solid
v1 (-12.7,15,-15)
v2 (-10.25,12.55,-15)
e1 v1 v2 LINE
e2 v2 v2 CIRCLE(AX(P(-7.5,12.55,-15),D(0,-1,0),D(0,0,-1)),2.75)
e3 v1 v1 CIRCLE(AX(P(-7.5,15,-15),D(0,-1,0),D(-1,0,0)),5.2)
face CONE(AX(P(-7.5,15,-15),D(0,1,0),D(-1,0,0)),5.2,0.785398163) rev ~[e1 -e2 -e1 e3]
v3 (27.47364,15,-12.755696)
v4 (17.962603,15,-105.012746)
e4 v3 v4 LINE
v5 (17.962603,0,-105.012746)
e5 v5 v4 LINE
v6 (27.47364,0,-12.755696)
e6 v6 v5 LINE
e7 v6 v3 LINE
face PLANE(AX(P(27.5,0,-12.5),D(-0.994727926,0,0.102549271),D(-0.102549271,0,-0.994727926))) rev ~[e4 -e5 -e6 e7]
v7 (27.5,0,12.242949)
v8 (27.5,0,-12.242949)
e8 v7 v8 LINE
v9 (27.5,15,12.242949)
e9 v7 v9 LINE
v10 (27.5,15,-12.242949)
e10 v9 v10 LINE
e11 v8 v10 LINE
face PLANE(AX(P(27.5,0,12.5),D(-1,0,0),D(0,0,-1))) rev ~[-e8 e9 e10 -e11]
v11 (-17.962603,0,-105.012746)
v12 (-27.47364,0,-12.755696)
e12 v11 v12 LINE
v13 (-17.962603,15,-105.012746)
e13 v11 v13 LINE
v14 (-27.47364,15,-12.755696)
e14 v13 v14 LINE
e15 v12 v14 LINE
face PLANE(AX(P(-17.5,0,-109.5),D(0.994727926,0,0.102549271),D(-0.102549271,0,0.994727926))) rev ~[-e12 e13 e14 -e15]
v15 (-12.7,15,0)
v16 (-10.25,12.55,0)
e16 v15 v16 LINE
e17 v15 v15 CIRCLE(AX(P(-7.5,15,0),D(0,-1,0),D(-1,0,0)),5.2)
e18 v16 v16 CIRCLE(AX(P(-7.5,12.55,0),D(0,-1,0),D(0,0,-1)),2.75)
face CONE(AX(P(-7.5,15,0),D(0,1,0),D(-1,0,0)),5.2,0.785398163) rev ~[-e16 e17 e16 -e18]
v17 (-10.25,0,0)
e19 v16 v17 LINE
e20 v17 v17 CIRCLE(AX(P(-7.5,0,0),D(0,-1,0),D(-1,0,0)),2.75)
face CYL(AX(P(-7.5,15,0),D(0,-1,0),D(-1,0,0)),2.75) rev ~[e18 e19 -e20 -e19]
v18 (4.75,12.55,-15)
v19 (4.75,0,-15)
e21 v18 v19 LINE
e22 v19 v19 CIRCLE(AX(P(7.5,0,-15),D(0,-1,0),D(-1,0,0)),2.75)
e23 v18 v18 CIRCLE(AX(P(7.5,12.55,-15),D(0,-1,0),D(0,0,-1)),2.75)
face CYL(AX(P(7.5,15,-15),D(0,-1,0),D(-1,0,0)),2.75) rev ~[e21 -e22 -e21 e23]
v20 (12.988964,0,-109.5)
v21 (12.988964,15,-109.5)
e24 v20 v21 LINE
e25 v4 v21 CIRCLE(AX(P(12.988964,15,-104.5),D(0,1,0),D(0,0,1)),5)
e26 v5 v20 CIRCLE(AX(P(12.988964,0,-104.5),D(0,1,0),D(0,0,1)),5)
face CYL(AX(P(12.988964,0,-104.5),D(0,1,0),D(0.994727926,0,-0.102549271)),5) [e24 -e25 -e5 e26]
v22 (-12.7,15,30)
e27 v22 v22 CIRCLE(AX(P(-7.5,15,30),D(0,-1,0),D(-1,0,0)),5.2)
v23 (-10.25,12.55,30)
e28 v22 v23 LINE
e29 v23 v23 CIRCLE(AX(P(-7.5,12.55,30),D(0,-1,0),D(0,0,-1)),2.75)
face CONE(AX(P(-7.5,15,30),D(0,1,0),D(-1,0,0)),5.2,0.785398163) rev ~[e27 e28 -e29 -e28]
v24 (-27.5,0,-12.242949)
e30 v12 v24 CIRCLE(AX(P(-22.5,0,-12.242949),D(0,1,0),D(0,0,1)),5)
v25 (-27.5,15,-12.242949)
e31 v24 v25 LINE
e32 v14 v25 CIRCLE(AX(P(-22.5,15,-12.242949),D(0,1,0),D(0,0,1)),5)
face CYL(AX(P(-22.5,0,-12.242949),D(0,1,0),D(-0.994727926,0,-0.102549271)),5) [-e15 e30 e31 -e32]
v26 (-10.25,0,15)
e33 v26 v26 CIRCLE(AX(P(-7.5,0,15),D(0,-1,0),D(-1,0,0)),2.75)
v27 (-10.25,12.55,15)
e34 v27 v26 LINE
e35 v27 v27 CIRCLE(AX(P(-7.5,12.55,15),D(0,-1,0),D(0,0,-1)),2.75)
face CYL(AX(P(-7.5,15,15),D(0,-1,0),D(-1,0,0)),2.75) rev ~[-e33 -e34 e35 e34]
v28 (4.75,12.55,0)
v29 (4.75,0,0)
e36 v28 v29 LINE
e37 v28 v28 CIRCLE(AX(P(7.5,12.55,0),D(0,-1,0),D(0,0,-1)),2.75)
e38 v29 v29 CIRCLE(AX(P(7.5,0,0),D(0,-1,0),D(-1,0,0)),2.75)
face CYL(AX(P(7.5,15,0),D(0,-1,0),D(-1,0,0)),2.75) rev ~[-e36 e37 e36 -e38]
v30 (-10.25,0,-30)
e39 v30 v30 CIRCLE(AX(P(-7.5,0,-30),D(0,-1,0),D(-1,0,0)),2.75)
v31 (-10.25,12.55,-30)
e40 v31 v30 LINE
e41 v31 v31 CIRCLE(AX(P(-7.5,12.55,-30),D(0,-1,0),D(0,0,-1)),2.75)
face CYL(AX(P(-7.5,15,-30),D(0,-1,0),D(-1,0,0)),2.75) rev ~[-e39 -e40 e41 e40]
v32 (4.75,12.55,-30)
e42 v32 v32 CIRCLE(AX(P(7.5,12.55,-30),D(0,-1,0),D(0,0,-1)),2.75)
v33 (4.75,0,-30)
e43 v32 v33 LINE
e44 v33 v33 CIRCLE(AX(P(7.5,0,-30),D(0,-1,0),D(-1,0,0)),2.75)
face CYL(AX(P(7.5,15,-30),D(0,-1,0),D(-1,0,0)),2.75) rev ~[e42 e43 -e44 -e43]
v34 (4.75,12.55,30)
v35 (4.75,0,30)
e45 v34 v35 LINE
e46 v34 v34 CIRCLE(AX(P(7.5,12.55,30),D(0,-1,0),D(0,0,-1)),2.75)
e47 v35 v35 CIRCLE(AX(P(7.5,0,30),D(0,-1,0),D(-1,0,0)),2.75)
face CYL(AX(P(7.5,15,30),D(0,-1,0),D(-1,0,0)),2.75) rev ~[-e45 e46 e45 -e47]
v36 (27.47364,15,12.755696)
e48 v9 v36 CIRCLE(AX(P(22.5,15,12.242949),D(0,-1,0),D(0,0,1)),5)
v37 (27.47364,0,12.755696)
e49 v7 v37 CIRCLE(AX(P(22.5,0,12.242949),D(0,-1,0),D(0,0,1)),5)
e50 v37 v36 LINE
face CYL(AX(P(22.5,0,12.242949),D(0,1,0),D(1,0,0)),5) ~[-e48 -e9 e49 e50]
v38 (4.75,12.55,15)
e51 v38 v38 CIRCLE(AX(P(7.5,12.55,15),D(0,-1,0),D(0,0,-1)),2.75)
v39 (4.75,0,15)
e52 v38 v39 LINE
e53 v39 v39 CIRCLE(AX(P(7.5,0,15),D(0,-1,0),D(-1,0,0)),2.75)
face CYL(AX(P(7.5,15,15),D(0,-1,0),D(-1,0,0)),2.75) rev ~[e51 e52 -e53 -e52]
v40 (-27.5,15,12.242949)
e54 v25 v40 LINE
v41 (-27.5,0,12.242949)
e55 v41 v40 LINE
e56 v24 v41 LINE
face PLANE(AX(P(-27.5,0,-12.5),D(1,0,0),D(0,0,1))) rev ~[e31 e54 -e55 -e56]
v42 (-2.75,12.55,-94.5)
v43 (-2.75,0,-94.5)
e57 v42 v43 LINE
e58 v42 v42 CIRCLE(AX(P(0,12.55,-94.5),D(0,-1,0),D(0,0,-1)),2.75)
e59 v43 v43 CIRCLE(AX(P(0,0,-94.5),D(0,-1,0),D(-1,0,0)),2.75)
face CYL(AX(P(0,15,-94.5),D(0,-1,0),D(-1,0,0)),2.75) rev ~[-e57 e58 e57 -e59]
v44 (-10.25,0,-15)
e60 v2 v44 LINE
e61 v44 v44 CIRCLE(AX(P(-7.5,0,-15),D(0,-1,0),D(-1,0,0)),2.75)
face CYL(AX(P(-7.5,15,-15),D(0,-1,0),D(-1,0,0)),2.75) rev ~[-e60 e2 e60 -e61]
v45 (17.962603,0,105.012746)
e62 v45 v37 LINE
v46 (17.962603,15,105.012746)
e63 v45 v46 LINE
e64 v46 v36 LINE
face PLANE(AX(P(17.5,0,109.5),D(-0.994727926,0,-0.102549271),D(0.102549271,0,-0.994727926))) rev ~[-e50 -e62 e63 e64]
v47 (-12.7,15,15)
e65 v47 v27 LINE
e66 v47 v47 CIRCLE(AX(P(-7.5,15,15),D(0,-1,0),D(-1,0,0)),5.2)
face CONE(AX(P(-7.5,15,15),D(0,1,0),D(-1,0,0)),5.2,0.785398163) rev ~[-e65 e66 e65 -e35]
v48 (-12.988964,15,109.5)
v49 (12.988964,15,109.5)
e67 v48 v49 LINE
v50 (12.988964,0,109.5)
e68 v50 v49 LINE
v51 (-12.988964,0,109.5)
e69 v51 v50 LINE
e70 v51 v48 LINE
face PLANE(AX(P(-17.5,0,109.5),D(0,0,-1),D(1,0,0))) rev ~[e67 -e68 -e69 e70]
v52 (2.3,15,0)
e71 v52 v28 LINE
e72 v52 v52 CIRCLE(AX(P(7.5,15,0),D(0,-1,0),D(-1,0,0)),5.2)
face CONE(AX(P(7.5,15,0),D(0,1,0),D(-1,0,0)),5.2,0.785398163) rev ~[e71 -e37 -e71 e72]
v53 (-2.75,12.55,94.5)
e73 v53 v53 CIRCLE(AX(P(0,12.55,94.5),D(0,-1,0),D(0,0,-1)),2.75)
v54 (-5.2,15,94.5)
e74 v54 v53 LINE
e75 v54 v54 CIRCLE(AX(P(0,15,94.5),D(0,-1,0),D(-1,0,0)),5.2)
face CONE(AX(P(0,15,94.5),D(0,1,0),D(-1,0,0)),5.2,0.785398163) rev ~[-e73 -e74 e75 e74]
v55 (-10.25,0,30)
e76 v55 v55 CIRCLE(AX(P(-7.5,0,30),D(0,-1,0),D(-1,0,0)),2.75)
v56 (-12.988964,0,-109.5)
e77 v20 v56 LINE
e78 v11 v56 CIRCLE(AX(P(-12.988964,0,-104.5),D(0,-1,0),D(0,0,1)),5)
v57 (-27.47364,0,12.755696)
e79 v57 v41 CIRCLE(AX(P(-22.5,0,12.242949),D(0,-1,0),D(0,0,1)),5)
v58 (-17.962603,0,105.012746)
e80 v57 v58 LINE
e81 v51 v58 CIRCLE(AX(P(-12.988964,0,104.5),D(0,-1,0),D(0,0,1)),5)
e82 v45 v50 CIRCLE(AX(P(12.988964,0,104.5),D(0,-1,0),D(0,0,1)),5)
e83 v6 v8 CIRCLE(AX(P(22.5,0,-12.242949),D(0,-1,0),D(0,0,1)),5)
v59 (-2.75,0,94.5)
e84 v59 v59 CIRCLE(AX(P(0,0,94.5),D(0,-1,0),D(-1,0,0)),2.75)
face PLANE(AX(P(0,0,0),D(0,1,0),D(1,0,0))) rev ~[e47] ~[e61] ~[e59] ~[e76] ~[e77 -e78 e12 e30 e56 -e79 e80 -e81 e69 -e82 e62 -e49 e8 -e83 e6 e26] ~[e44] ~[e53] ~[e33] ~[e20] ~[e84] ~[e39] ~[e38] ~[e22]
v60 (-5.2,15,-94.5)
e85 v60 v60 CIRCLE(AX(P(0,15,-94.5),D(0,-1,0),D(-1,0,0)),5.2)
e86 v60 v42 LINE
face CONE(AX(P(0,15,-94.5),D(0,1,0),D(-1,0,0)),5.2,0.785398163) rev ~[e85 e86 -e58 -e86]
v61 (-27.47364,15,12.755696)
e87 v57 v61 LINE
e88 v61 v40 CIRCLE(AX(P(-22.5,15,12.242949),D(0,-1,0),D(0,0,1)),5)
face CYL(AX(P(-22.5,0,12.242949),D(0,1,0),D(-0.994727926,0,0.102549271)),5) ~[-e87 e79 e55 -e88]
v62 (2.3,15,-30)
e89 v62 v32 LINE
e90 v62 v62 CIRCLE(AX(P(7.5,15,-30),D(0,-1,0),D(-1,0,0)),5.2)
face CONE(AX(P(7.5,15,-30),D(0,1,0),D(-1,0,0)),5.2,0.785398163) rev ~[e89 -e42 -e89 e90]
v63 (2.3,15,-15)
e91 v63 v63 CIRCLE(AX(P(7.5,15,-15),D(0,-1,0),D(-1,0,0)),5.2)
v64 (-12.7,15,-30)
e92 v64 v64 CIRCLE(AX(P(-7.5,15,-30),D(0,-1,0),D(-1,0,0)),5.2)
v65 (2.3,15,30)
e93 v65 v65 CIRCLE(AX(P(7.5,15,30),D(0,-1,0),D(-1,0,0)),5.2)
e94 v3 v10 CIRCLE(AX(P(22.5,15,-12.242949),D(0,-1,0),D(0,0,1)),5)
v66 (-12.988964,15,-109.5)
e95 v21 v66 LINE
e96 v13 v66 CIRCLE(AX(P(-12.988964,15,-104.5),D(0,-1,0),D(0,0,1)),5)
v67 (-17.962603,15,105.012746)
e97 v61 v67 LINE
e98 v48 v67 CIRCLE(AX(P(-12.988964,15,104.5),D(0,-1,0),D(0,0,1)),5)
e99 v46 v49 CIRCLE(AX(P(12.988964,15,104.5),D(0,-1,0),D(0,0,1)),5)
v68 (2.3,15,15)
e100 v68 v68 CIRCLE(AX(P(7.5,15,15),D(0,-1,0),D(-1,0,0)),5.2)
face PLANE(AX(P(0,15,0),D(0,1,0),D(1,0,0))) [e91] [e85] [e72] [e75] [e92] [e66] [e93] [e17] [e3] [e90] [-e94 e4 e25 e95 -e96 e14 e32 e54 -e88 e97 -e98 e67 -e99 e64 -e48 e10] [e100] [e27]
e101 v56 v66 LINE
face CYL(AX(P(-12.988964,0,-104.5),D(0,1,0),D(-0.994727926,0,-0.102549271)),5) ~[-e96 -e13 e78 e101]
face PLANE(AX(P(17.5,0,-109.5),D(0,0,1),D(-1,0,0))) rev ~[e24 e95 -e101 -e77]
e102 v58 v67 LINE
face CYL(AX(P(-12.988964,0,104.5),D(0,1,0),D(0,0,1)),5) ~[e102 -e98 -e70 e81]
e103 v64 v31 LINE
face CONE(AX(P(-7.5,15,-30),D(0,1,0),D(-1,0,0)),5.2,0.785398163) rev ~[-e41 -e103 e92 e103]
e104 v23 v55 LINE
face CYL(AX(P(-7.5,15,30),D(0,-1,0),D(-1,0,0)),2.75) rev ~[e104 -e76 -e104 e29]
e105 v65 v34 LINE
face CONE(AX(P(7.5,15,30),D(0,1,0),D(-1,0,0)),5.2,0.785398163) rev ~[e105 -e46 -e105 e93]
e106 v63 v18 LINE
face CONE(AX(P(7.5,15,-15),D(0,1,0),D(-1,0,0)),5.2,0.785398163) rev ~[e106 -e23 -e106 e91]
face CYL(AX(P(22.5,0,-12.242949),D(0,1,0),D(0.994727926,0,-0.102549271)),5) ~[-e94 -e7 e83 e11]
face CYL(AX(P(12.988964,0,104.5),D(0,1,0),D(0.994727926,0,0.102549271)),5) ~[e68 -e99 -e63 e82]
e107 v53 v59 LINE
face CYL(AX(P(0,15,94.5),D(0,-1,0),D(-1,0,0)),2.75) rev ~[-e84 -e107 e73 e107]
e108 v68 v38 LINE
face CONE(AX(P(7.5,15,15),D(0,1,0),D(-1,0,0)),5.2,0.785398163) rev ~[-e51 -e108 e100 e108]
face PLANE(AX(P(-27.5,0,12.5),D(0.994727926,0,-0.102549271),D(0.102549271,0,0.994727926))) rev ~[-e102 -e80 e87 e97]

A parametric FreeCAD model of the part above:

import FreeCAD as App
import Part
import Sketcher


def edges_at(feature, points):
    """Names of the edges that pass closest to the given points."""
    edges = feature.Shape.Edges
    near = lambda p: min(range(len(edges)), key=lambda i: edges[i].distToShape(Part.Vertex(*p))[0])
    return sorted({f"Edge{near(p) + 1}" for p in points})


def add_polygon(sketch, points):
    """Adds a closed chain of lines whose ends are joined by coincident constraints."""
    first, n = sketch.GeometryCount, len(points)
    for a, b in zip(points, points[1:] + points[:1]):
        sketch.addGeometry(Part.LineSegment(App.Vector(*a, 0), App.Vector(*b, 0)), False)
    for i in range(n):
        sketch.addConstraint(Sketcher.Constraint("Coincident", first + i, 2, first + (i + 1) % n, 1))

doc = App.newDocument("Part")
body = doc.addObject("PartDesign::Body", "Body")

# Sketch on XZ plane
sketch1 = body.newObject("Sketcher::SketchObject", "Sketch")
sketch1.AttachmentSupport = (doc.getObject("XZ_Plane"), [""])
sketch1.MapMode = "FlatFace"
add_polygon(sketch1, [(-18, -110), (-28, -12), (-28, 12), (-18, 110), (18, 110), (28, 12), (28, -12), (18, -110)])  # lines 0-7
sketch1.addConstraint([
    Sketcher.Constraint("Vertical", 1),
    Sketcher.Constraint("Horizontal", 3),
    Sketcher.Constraint("Vertical", 5),
    Sketcher.Constraint("Horizontal", 7),
    Sketcher.Constraint("Symmetric", 0, 2, 4, 2, -1, 1),
    Sketcher.Constraint("Symmetric", 2, 2, 6, 2, -1, 1),
    Sketcher.Constraint("Parallel", 0, 4),
    Sketcher.Constraint("Parallel", 2, 6),
    Sketcher.Constraint("Horizontal", 1, 2, 4, 2),
    Sketcher.Constraint("Vertical", 3, 2, 6, 2),
    Sketcher.Constraint("DistanceX", 3, 1, 3, 2, 35.0),
    Sketcher.Constraint("DistanceY", 1, 1, 1, 2, 25.0),
    Sketcher.Constraint("DistanceX", 1, 2, 2, 2, 10.0),
    Sketcher.Constraint("DistanceY", 1, 2, 2, 2, 97.0),
])
pad1 = body.newObject("PartDesign::Pad", "Pad")
pad1.Profile = sketch1
pad1.Length = 15
pad1.Reversed = True

# Sketch on XZ plane
sketch2 = body.newObject("Sketcher::SketchObject", "Sketch001")
sketch2.AttachmentSupport = (doc.getObject("XZ_Plane"), [""])
sketch2.MapMode = "FlatFace"
sketch2.AttachmentOffset = App.Placement(App.Vector(0, 0, -15), App.Rotation())
sketch2.addGeometry([
    Part.Circle(App.Vector(-7.5, -30, 0), App.Vector(0, 0, 1), 2.8),  # 0
    Part.Circle(App.Vector(7.5, -30, 0), App.Vector(0, 0, 1), 2.8),  # 1
    Part.Circle(App.Vector(7.5, -15, 0), App.Vector(0, 0, 1), 2.8),  # 2
    Part.Circle(App.Vector(-7.5, -15, 0), App.Vector(0, 0, 1), 2.8),  # 3
    Part.Circle(App.Vector(-7.5, 0, 0), App.Vector(0, 0, 1), 2.8),  # 4
    Part.Circle(App.Vector(7.5, 0, 0), App.Vector(0, 0, 1), 2.8),  # 5
    Part.Circle(App.Vector(7.5, 15, 0), App.Vector(0, 0, 1), 2.8),  # 6
    Part.Circle(App.Vector(-7.5, 15, 0), App.Vector(0, 0, 1), 2.8),  # 7
    Part.Circle(App.Vector(-7.5, 30, 0), App.Vector(0, 0, 1), 2.8),  # 8
    Part.Circle(App.Vector(7.5, 30, 0), App.Vector(0, 0, 1), 2.8),  # 9
    Part.Circle(App.Vector(0, 94.5, 0), App.Vector(0, 0, 1), 2.8),  # 10
    Part.Circle(App.Vector(0, -94.5, 0), App.Vector(0, 0, 1), 2.8),  # 11
], False)
sketch2.addConstraint([
    Sketcher.Constraint("Equal", 0, 1),
    Sketcher.Constraint("Equal", 1, 2),
    Sketcher.Constraint("Equal", 2, 3),
    Sketcher.Constraint("Equal", 3, 4),
    Sketcher.Constraint("Equal", 4, 5),
    Sketcher.Constraint("Equal", 5, 6),
    Sketcher.Constraint("Equal", 6, 7),
    Sketcher.Constraint("Equal", 7, 8),
    Sketcher.Constraint("Equal", 8, 9),
    Sketcher.Constraint("Equal", 9, 10),
    Sketcher.Constraint("Equal", 10, 11),
    Sketcher.Constraint("Symmetric", 4, 3, 5, 3, -1, 1),
    Sketcher.Constraint("Symmetric", 3, 3, 6, 3, -1, 1),
    Sketcher.Constraint("Symmetric", 2, 3, 7, 3, -1, 1),
    Sketcher.Constraint("Symmetric", 1, 3, 8, 3, -1, 1),
    Sketcher.Constraint("Symmetric", 0, 3, 9, 3, -1, 1),
    Sketcher.Constraint("Symmetric", 10, 3, 11, 3, -1, 1),
    Sketcher.Constraint("Symmetric", 0, 3, 1, 3, -2),
    Sketcher.Constraint("Symmetric", 2, 3, 3, 3, -2),
    Sketcher.Constraint("PointOnObject", 4, 3, -1),
    Sketcher.Constraint("PointOnObject", 10, 3, -2),
    Sketcher.Constraint("Vertical", 1, 3, 2, 3),
    Sketcher.Constraint("Vertical", 3, 3, 4, 3),
    Sketcher.Constraint("Diameter", 0, 5.5),
    Sketcher.Constraint("DistanceY", 0, 3, -1, 1, 30.0),
    Sketcher.Constraint("DistanceY", 2, 3, -1, 1, 15.0),
    Sketcher.Constraint("DistanceX", 0, 3, 1, 3, 15.0),
    Sketcher.Constraint("DistanceY", -1, 1, 10, 3, 94.5),
])
doc.recompute()
hole = body.newObject("PartDesign::Hole", "Hole")
hole.Profile = sketch2
hole.ThreadType = "None"
hole.Diameter = 5.5
hole.DepthType = "ThroughAll"
hole.HoleCutType = "Countersink"
hole.HoleCutDiameter = 10.4
hole.HoleCutCountersinkAngle = 90
hole.Reversed = True
doc.recompute()

fillet = body.newObject("PartDesign::Fillet", "Fillet")
fillet.Base = (hole, edges_at(hole, [
    (27.5, 7.5, -12.5),
    (27.5, 7.5, 12.5),
    (17.5, 7.5, 109.5),
    (-17.5, 7.5, 109.5),
    (-27.5, 7.5, 12.5),
    (-27.5, 7.5, -12.5),
    (-17.5, 7.5, -109.5),
    (17.5, 7.5, -109.5),
]))
fillet.Radius = 5

doc.recompute()
